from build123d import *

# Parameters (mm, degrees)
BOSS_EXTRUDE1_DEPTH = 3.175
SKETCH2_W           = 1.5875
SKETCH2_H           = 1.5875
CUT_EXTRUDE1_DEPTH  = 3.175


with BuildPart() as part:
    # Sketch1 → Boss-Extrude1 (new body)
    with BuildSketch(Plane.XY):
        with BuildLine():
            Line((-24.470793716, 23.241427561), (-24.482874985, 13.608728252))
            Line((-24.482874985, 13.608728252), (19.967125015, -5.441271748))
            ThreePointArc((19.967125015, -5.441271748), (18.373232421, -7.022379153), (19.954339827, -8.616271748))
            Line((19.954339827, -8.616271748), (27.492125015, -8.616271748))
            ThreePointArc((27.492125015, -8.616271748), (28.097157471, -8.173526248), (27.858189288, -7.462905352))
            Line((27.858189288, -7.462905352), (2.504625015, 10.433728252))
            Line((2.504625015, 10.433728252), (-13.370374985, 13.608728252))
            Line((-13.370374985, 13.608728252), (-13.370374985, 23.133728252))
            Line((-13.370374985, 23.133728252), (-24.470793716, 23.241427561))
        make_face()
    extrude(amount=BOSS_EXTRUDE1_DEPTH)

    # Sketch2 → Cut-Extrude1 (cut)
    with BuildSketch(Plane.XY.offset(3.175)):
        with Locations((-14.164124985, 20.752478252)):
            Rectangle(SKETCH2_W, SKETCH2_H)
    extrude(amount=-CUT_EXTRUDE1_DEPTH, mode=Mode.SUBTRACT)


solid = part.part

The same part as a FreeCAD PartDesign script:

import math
import FreeCAD as App
import Part
import Sketcher

V = App.Vector
Q = App.Units.Quantity


def add_polygon(sketch, points):
    """Adds a closed chain of lines whose ends are joined by coincident constraints."""
    first, n = sketch.GeometryCount, len(points)
    for a, b in zip(points, points[1:] + points[:1]):
        sketch.addGeometry(Part.LineSegment(App.Vector(*a, 0), App.Vector(*b, 0)), False)
    for i in range(n):
        sketch.addConstraint(Sketcher.Constraint("Coincident", first + i, 2, first + (i + 1) % n, 1))

doc = App.newDocument("Part")
body = doc.addObject("PartDesign::Body", "Body")

# Sketch on XY plane
sketch1 = doc.addObject("Sketcher::SketchObject", "Sketch")
body.addObject(sketch1)
sketch1.AttachmentSupport = (doc.XY_Plane, [""])
sketch1.MapMode = "FlatFace"
sketch1.addGeometry([
    Part.LineSegment(V(-24.470794, 23.241428, 0), V(-24.482875, 13.608728, 0)),  # 0
    Part.LineSegment(V(-24.482875, 13.608728, 0), V(19.967125, -5.441272, 0)),  # 1
    Part.ArcOfCircle(Part.Circle(V(19.960732, -7.028772, 0), V(0, 0, 1), 1.587513), math.radians(89.769281), math.radians(269.769281)),  # 2
    Part.LineSegment(V(19.95434, -8.616272, 0), V(27.492125, -8.616272, 0)),  # 3
    Part.ArcOfCircle(Part.Circle(V(27.492125, -7.981496, 0), V(0, 0, 1), 0.634775), math.radians(-90), math.radians(54.782407)),  # 4
    Part.LineSegment(V(27.858189, -7.462905, 0), V(2.504625, 10.433728, 0)),  # 5
    Part.LineSegment(V(2.504625, 10.433728, 0), V(-13.370375, 13.608728, 0)),  # 6
    Part.LineSegment(V(-13.370375, 13.608728, 0), V(-13.370375, 23.133728, 0)),  # 7
    Part.LineSegment(V(-13.370375, 23.133728, 0), V(-24.470794, 23.241428, 0)),  # 8
], False)
sketch1.addConstraint([
    Sketcher.Constraint("Coincident", 0, 2, 1, 1),
    Sketcher.Constraint("Coincident", 1, 2, 2, 1),
    Sketcher.Constraint("Coincident", 2, 2, 3, 1),
    Sketcher.Constraint("Tangent", 3, 2, 4, 1),
    Sketcher.Constraint("Tangent", 4, 2, 5, 1),
    Sketcher.Constraint("Coincident", 5, 2, 6, 1),
    Sketcher.Constraint("Coincident", 6, 2, 7, 1),
    Sketcher.Constraint("Coincident", 7, 2, 8, 1),
    Sketcher.Constraint("Coincident", 8, 2, 0, 1),
    Sketcher.Constraint("Horizontal", 3),
    Sketcher.Constraint("Vertical", 7),
    Sketcher.Constraint("Horizontal", 0, 2, 6, 2),
    Sketcher.Constraint("DistanceY", 5, 2, 7, 2, Q("0.5 in")),
    Sketcher.Constraint("DistanceY", 7, 1, 7, 2, Q("0.375 in")),
    Sketcher.Constraint("DistanceX", 0, 2, 1, 2, Q("1.75 in")),
    Sketcher.Constraint("DistanceY", 1, 2, 0, 2, Q("0.75 in")),
    Sketcher.Constraint("DistanceY", 2, 2, 5, 2, Q("0.75 in")),
    Sketcher.Constraint("DistanceY", 2, 3, 0, 2, Q("0.8125 in")),
    Sketcher.Constraint("DistanceX", 5, 2, 1, 2, Q("0.6875 in")),
    Sketcher.Constraint("DistanceX", 0, 2, 6, 2, Q("0.4375 in")),
    Sketcher.Constraint("Radius", 4, 0.634775),
    Sketcher.Constraint("DistanceX", 0, 2, 4, 3, 51.975),
    Sketcher.Constraint("DistanceY", 0, 2, 8, 2, 9.632699),
    Sketcher.Constraint("Distance", 8, 11.100941),
    Sketcher.Constraint("DistanceX", 3, 1, 3, 2, 7.537785),
    Sketcher.Constraint("DistanceY", 2, 3, -1, 1, 7.028772),
    Sketcher.Constraint("DistanceX", -1, 1, 2, 2, 19.95434),
])
pad1 = doc.addObject("PartDesign::Pad", "Pad")
body.addObject(pad1)
pad1.Profile = sketch1
pad1.Length = Q("0.125 in")

# Sketch on XY plane
sketch2 = doc.addObject("Sketcher::SketchObject", "Sketch001")
body.addObject(sketch2)
sketch2.AttachmentSupport = (doc.XY_Plane, [""])
sketch2.MapMode = "FlatFace"
sketch2.AttachmentOffset = App.Placement(V(0, 0, 0.125 * 25.4), App.Rotation())
add_polygon(sketch2, [(-14.957875, 21.546228), (-14.957875, 19.958728), (-13.370375, 19.958728), (-13.370375, 21.546228)])  # lines 0-3
sketch2.addConstraint([
    Sketcher.Constraint("Vertical", 0),
    Sketcher.Constraint("Horizontal", 1),
    Sketcher.Constraint("Vertical", 2),
    Sketcher.Constraint("Horizontal", 3),
    Sketcher.Constraint("Equal", 3, 0),
    Sketcher.Constraint("DistanceX", 1, 1, 1, 2, Q("0.0625 in")),
    Sketcher.Constraint("DistanceY", -1, 1, 0, 2, 19.958728),
    Sketcher.Constraint("DistanceX", 0, 2, -1, 1, 14.957875),
])
pocket1 = doc.addObject("PartDesign::Pocket", "Pocket")
body.addObject(pocket1)
pocket1.Profile = sketch2
pocket1.Length = Q("0.125 in")

doc.recompute()
